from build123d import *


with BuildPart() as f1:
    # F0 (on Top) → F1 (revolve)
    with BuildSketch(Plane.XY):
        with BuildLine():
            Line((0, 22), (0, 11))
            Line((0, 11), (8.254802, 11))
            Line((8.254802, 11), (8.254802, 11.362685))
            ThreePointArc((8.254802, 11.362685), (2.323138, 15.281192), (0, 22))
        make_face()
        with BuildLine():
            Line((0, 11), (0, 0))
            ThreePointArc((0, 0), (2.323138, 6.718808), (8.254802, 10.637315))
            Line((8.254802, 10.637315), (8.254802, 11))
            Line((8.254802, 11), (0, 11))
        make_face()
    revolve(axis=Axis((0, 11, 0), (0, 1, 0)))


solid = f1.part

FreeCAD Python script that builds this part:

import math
import FreeCAD as App
import Part
import Sketcher
Q = App.Units.Quantity

doc = App.newDocument("Part")
params = doc.addObject("Spreadsheet::Sheet", "Params")
for row, (alias, value) in enumerate([
    ("sketch1_height", "22 mm"),
    ("revolution_angle", "360 deg"),
], start=1):
    params.set(f"A{row}", alias)
    params.set(f"B{row}", "=" + value)
    params.setAlias(f"B{row}", alias)

body = doc.addObject("PartDesign::Body", "Body")

sketch1 = doc.addObject("Sketcher::SketchObject", "Sketch")
body.addObject(sketch1)
sketch1.AttachmentSupport = (doc.XY_Plane, [""])
sketch1.MapMode = "FlatFace"
sketch1.addGeometry([
    Part.LineSegment(App.Vector(0, 22, 0), App.Vector(0, 0, 0)),
    Part.ArcOfCircle(Part.Circle(App.Vector(11.064512, -0.064701, 0), App.Vector(0, 0, 1), 11.064701), math.radians(104.710463), math.radians(179.66496)),
    Part.LineSegment(App.Vector(8.254802, 10.637315, 0), App.Vector(8.254802, 11.362685, 0)),
    Part.ArcOfCircle(Part.Circle(App.Vector(11.064512, 22.064701, 0), App.Vector(0, 0, 1), 11.064701), math.radians(-179.66496), math.radians(-104.710463)),
], False)
sketch1.addConstraint([
    Sketcher.Constraint("Coincident", 0, 2, 1, 2),
    Sketcher.Constraint("Coincident", 1, 1, 2, 1),
    Sketcher.Constraint("Coincident", 2, 2, 3, 2),
    Sketcher.Constraint("Coincident", 3, 1, 0, 1),
    Sketcher.Constraint("Vertical", 0),
    Sketcher.Constraint("Vertical", 2),
    Sketcher.Constraint("Coincident", 0, 2, -1, 1),
    Sketcher.Constraint("Equal", 1, 3),
    Sketcher.Constraint("Vertical", 1, 3, 3, 3),
    Sketcher.Constraint("DistanceY", 0, 2, 0, 1, Q("22 mm")),
    Sketcher.Constraint("Radius", 1, Q("11.064701 mm")),
    Sketcher.Constraint("DistanceY", 2, 1, 2, 2, Q("0.72537 mm")),
    Sketcher.Constraint("DistanceY", 1, 3, -1, 1, Q("0.064701 mm")),
])
sketch1.setExpression("Constraints[9]", "Params.sketch1_height")
revolution = doc.addObject("PartDesign::Revolution", "Revolution")
body.addObject(revolution)
revolution.Profile = sketch1
revolution.ReferenceAxis = (sketch1, ["V_Axis"])
revolution.setExpression("Angle", "Params.revolution_angle")

doc.recompute()
